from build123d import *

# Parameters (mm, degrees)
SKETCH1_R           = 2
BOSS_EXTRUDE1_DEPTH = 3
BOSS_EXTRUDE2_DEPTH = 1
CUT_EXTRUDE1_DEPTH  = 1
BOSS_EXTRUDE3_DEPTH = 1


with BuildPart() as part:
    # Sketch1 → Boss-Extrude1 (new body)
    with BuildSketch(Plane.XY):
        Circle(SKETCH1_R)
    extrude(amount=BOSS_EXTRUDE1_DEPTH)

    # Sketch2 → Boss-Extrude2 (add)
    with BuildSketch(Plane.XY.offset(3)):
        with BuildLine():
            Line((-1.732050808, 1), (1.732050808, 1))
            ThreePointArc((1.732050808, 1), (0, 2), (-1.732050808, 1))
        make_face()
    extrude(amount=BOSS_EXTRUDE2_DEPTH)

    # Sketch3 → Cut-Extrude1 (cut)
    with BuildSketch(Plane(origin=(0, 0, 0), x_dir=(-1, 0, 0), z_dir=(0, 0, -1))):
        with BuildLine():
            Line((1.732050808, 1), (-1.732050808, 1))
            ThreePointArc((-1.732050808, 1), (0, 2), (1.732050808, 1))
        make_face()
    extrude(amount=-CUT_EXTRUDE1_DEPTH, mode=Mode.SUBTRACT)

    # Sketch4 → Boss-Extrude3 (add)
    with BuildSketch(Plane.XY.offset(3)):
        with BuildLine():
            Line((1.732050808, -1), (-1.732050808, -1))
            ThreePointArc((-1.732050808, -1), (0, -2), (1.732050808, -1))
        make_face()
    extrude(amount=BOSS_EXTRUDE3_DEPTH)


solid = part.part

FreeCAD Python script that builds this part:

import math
import FreeCAD as App
import Part
import Sketcher
from FreeCAD import Vector
Q = App.Units.Quantity

doc = App.newDocument("Part")
body = doc.addObject("PartDesign::Body", "Body")

sketch1 = body.newObject("Sketcher::SketchObject", "Sketch")
sketch1.AttachmentSupport = (doc.getObject("XY_Plane"), [""])
sketch1.MapMode = "FlatFace"
sketch1.addGeometry(Part.Circle(Vector(0, 0, 0), Vector(0, 0, 1), 2), False)
sketch1.addConstraint([
    Sketcher.Constraint("Coincident", 0, 3, -1, 1),
    Sketcher.Constraint("Diameter", 0, Q("4 mm")),
])
pad1 = body.newObject("PartDesign::Pad", "Pad")
pad1.Profile = sketch1
pad1.Length = 3

sketch2 = body.newObject("Sketcher::SketchObject", "Sketch001")
sketch2.AttachmentSupport = (doc.getObject("XY_Plane"), [""])
sketch2.MapMode = "FlatFace"
sketch2.AttachmentOffset = App.Placement(Vector(0, 0, 3), App.Rotation())
sketch2.addGeometry([
    Part.LineSegment(Vector(-1.7, 1, 0), Vector(1.7, 1, 0)),
    Part.ArcOfCircle(Part.Circle(Vector(0, 0, 0), Vector(0, 0, 1), 2), math.radians(30), math.radians(150)),
], False)
sketch2.addConstraint([
    Sketcher.Constraint("Coincident", 0, 1, 1, 2),
    Sketcher.Constraint("Coincident", 1, 1, 0, 2),
    Sketcher.Constraint("Horizontal", 0),
    Sketcher.Constraint("Coincident", 1, 3, -1, 1),
    Sketcher.Constraint("Radius", 1, Q("2 mm")),
    Sketcher.Constraint("DistanceY", -1, 1, 0, 1, Q("1 mm")),
])
pad2 = body.newObject("PartDesign::Pad", "Pad001")
pad2.Profile = sketch2
pad2.Length = 1

sketch3 = body.newObject("Sketcher::SketchObject", "Sketch002")
sketch3.AttachmentSupport = (doc.getObject("XY_Plane"), [""])
sketch3.MapMode = "FlatFace"
sketch3.addGeometry([
    Part.LineSegment(Vector(1.7, 1, 0), Vector(-1.7, 1, 0)),
    Part.ArcOfCircle(Part.Circle(Vector(0, 0, 0), Vector(0, 0, 1), 2), math.radians(30), math.radians(150)),
], False)
sketch3.addConstraint([
    Sketcher.Constraint("Coincident", 0, 1, 1, 1),
    Sketcher.Constraint("Coincident", 1, 2, 0, 2),
    Sketcher.Constraint("Horizontal", 0),
    Sketcher.Constraint("Coincident", 1, 3, -1, 1),
    Sketcher.Constraint("Radius", 1, Q("2 mm")),
    Sketcher.Constraint("DistanceY", -1, 1, 0, 1, Q("1 mm")),
])
pocket1 = body.newObject("PartDesign::Pocket", "Pocket")
pocket1.Profile = sketch3
pocket1.Length = 1
pocket1.Reversed = True

sketch4 = body.newObject("Sketcher::SketchObject", "Sketch003")
sketch4.AttachmentSupport = (doc.getObject("XY_Plane"), [""])
sketch4.MapMode = "FlatFace"
sketch4.AttachmentOffset = App.Placement(Vector(0, 0, 3), App.Rotation())
sketch4.addGeometry([
    Part.LineSegment(Vector(1.7, -1, 0), Vector(-1.7, -1, 0)),
    Part.ArcOfCircle(Part.Circle(Vector(0, 0, 0), Vector(0, 0, 1), 2), math.radians(-150), math.radians(-30)),
], False)
sketch4.addConstraint([
    Sketcher.Constraint("Coincident", 0, 1, 1, 2),
    Sketcher.Constraint("Coincident", 1, 1, 0, 2),
    Sketcher.Constraint("Horizontal", 0),
    Sketcher.Constraint("Coincident", 1, 3, -1, 1),
    Sketcher.Constraint("Radius", 1, Q("2 mm")),
    Sketcher.Constraint("DistanceY", 0, 1, -1, 1, Q("1 mm")),
])
pad3 = body.newObject("PartDesign::Pad", "Pad002")
pad3.Profile = sketch4
pad3.Length = 1

doc.recompute()
